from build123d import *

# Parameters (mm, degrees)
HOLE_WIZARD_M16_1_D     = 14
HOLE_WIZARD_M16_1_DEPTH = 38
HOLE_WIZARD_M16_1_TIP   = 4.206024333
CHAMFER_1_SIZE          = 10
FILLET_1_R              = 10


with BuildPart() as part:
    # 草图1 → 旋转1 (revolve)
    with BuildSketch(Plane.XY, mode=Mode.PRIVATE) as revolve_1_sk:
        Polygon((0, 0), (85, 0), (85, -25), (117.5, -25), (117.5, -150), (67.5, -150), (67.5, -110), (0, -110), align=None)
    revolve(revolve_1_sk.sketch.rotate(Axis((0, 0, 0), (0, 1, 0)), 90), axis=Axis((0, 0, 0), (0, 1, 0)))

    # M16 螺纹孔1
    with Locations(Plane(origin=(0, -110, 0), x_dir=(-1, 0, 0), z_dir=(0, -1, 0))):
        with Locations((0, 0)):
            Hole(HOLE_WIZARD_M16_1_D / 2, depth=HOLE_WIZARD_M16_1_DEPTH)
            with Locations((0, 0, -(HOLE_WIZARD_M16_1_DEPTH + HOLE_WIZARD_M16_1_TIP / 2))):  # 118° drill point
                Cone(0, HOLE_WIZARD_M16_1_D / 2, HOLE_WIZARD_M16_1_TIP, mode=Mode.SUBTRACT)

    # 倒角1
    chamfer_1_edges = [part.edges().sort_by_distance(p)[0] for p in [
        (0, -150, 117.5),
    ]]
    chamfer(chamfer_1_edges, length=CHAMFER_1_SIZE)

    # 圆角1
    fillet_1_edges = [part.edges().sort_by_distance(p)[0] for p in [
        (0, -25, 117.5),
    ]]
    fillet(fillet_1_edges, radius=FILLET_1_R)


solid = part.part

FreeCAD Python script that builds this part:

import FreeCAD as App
import Part
import Sketcher

V = App.Vector
Q = App.Units.Quantity


def edges_at(feature, points):
    """Names of the edges that pass closest to the given points."""
    edges = feature.Shape.Edges
    near = lambda p: min(range(len(edges)), key=lambda i: edges[i].distToShape(Part.Vertex(*p))[0])
    return sorted({f"Edge{near(p) + 1}" for p in points})


def add_polygon(sketch, points):
    """Adds a closed chain of lines whose ends are joined by coincident constraints."""
    first, n = sketch.GeometryCount, len(points)
    for a, b in zip(points, points[1:] + points[:1]):
        sketch.addGeometry(Part.LineSegment(App.Vector(*a, 0), App.Vector(*b, 0)), False)
    for i in range(n):
        sketch.addConstraint(Sketcher.Constraint("Coincident", first + i, 2, first + (i + 1) % n, 1))

doc = App.newDocument("Part")
body = doc.addObject("PartDesign::Body", "Body")

# Sketch on XY plane
sketch1 = doc.addObject("Sketcher::SketchObject", "Sketch")
body.addObject(sketch1)
sketch1.AttachmentSupport = (doc.XY_Plane, [""])
sketch1.MapMode = "FlatFace"
add_polygon(sketch1, [(85, 0), (0, 0), (0, -110), (67.5, -110), (67.5, -150), (117.5, -150), (117.5, -25), (85, -25)])  # lines 0-7
sketch1.addConstraint(Sketcher.Constraint("Horizontal", 0))
sketch1.addConstraint(Sketcher.Constraint("Vertical", 1))
sketch1.addConstraint(Sketcher.Constraint("Horizontal", 2))
sketch1.addConstraint(Sketcher.Constraint("Vertical", 3))
sketch1.addConstraint(Sketcher.Constraint("Horizontal", 4))
sketch1.addConstraint(Sketcher.Constraint("Vertical", 5))
sketch1.addConstraint(Sketcher.Constraint("Horizontal", 6))
sketch1.addConstraint(Sketcher.Constraint("Vertical", 7))
sketch1.addConstraint(Sketcher.Constraint("Coincident", 0, 2, -1, 1))
sketch1.addConstraint(Sketcher.Constraint("DistanceX", 0, 2, 0, 1, Q("85 mm")))
sketch1.addConstraint(Sketcher.Constraint("DistanceX", 4, 1, 4, 2, Q("50 mm")))
sketch1.addConstraint(Sketcher.Constraint("DistanceY", 1, 2, 1, 1, Q("110 mm")))
sketch1.addConstraint(Sketcher.Constraint("DistanceY", 3, 2, 3, 1, Q("40 mm")))
sketch1.addConstraint(Sketcher.Constraint("DistanceY", 5, 1, 5, 2, Q("125 mm")))
sketch1.addConstraint(Sketcher.Constraint("DistanceX", 2, 1, 2, 2, Q("67.5 mm")))
revolution = doc.addObject("PartDesign::Revolution", "Revolution")
body.addObject(revolution)
revolution.Profile = sketch1
revolution.ReferenceAxis = (sketch1, ["V_Axis"])
revolution.Angle = 360

# Sketch on XZ plane
sketch2 = doc.addObject("Sketcher::SketchObject", "Sketch001")
body.addObject(sketch2)
sketch2.AttachmentSupport = (doc.XZ_Plane, [""])
sketch2.MapMode = "FlatFace"
sketch2.AttachmentOffset = App.Placement(V(0, 0, 110), App.Rotation())
sketch2.addGeometry(Part.Circle(V(0, 0, 0), V(0, 0, 1), 7), False)
sketch2.addConstraint(Sketcher.Constraint("Coincident", 0, 3, -1, 1))
sketch2.addConstraint(Sketcher.Constraint("Diameter", 0, Q("14 mm")))
doc.recompute()
hole = doc.addObject("PartDesign::Hole", "Hole")
body.addObject(hole)
hole.Profile = sketch2
hole.ThreadType = "None"
hole.Diameter = 14
hole.DepthType = "Dimension"
hole.Depth = 38
hole.DrillPoint = "Angled"
hole.DrillPointAngle = 118
doc.recompute()

chamfer = doc.addObject("PartDesign::Chamfer", "Chamfer")
body.addObject(chamfer)
chamfer.Base = (hole, edges_at(hole, [(0, -150, 117.5)]))
chamfer.Size = 10
doc.recompute()

fillet = doc.addObject("PartDesign::Fillet", "Fillet")
body.addObject(fillet)
fillet.Base = (chamfer, edges_at(chamfer, [(0, -25, 117.5)]))
fillet.Radius = 10

doc.recompute()
